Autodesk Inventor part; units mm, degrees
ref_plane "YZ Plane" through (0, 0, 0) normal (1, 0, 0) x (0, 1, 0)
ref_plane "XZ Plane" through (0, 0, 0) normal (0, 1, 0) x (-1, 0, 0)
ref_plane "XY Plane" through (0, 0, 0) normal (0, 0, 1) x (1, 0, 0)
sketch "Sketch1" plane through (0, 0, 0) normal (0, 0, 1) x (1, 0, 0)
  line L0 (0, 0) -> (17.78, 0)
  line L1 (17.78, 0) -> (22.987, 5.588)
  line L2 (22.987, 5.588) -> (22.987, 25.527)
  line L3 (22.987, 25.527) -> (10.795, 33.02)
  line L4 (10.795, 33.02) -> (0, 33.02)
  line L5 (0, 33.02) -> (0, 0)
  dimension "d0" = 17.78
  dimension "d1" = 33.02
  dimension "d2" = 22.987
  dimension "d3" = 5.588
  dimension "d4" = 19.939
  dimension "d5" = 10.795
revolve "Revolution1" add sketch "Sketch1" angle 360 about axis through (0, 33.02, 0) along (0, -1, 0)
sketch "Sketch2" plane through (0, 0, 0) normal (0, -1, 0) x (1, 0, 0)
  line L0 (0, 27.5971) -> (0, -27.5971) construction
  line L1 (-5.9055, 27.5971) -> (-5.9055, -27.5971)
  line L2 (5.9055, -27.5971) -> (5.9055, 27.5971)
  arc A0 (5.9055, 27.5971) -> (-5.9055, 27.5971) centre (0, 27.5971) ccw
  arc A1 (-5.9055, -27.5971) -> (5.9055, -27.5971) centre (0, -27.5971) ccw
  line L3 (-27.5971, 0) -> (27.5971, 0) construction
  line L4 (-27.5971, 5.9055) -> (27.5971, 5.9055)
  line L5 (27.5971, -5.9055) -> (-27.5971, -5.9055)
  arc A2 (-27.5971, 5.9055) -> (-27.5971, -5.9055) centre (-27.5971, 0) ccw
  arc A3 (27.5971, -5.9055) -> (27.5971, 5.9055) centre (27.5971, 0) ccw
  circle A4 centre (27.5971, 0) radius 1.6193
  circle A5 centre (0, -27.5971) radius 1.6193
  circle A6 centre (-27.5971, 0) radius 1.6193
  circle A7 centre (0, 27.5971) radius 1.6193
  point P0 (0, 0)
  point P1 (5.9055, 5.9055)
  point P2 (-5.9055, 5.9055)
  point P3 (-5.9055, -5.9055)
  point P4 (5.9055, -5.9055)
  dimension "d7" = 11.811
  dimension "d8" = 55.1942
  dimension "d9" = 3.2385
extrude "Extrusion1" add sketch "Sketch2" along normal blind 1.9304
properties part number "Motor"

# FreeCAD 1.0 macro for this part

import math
import FreeCAD as App
import Part
import Sketcher
from FreeCAD import Vector
Q = App.Units.Quantity

doc = App.newDocument("Part")
params = doc.addObject("Spreadsheet::Sheet", "Params")
for row, (alias, value) in enumerate([
    ("sketch1_width", "0.7 in"),
    ("sketch1_height", "1.3 in"),
    ("sketch1_width2", "0.425 in"),
    ("sketch1_height2", "0.785 in"),
    ("revolution_angle", "360 deg"),
    ("pad1_length", "0.076 in"),
], start=1):
    params.set(f"A{row}", alias)
    params.set(f"B{row}", "=" + value)
    params.setAlias(f"B{row}", alias)

body = doc.addObject("PartDesign::Body", "Body")

# Sketch on XY plane
sketch1 = body.newObject("Sketcher::SketchObject", "Sketch")
sketch1.AttachmentSupport = (doc.getObject("XY_Plane"), [""])
sketch1.MapMode = "FlatFace"
sketch1.addGeometry([
    Part.LineSegment(Vector(0, 33.02, 0), Vector(0, 0, 0)),  # 0
    Part.LineSegment(Vector(0, 0, 0), Vector(17.78, 0, 0)),  # 1
    Part.LineSegment(Vector(17.78, 0, 0), Vector(22.987, 5.588, 0)),  # 2
    Part.LineSegment(Vector(22.987, 5.588, 0), Vector(22.987, 25.527, 0)),  # 3
    Part.LineSegment(Vector(22.987, 25.527, 0), Vector(10.795, 33.02, 0)),  # 4
    Part.LineSegment(Vector(10.795, 33.02, 0), Vector(0, 33.02, 0)),  # 5
], False)
sketch1.addConstraint([
    Sketcher.Constraint("Coincident", 0, 2, 1, 1),
    Sketcher.Constraint("Coincident", 1, 2, 2, 1),
    Sketcher.Constraint("Coincident", 2, 2, 3, 1),
    Sketcher.Constraint("Coincident", 3, 2, 4, 1),
    Sketcher.Constraint("Coincident", 4, 2, 5, 1),
    Sketcher.Constraint("Coincident", 5, 2, 0, 1),
    Sketcher.Constraint("Vertical", 0),
    Sketcher.Constraint("Horizontal", 1),
    Sketcher.Constraint("Vertical", 3),
    Sketcher.Constraint("Horizontal", 5),
    Sketcher.Constraint("Coincident", 0, 2, -1, 1),
    Sketcher.Constraint("DistanceX", 1, 1, 1, 2, Q("0.7 in")),
    Sketcher.Constraint("DistanceY", 0, 2, 0, 1, Q("1.3 in")),
    Sketcher.Constraint("DistanceX", 5, 2, 5, 1, Q("0.425 in")),
    Sketcher.Constraint("DistanceY", 3, 1, 3, 2, Q("0.785 in")),
    Sketcher.Constraint("DistanceY", -1, 1, 2, 2, Q("0.22 in")),
    Sketcher.Constraint("DistanceX", -1, 1, 2, 2, Q("0.905 in")),
])
sketch1.setExpression("Constraints[11]", "Params.sketch1_width")
sketch1.setExpression("Constraints[12]", "Params.sketch1_height")
sketch1.setExpression("Constraints[13]", "Params.sketch1_width2")
sketch1.setExpression("Constraints[14]", "Params.sketch1_height2")
revolution = body.newObject("PartDesign::Revolution", "Revolution")
revolution.Profile = sketch1
revolution.ReferenceAxis = (sketch1, ["V_Axis"])
revolution.setExpression("Angle", "Params.revolution_angle")

# Sketch on XZ plane
sketch2 = body.newObject("Sketcher::SketchObject", "Sketch001")
sketch2.AttachmentSupport = (doc.getObject("XZ_Plane"), [""])
sketch2.MapMode = "FlatFace"
sketch2.addGeometry([
    Part.ArcOfCircle(Part.Circle(Vector(0, 27.5971, 0), Vector(0, 0, 1), 5.9055), math.radians(0), math.radians(180)),  # 0
    Part.LineSegment(Vector(-5.9055, 27.5971, 0), Vector(-5.9055, 5.9055, 0)),  # 1
    Part.LineSegment(Vector(-5.9055, 5.9055, 0), Vector(-27.5971, 5.9055, 0)),  # 2
    Part.ArcOfCircle(Part.Circle(Vector(-27.5971, 0, 0), Vector(0, 0, 1), 5.9055), math.radians(90), math.radians(270)),  # 3
    Part.LineSegment(Vector(-27.5971, -5.9055, 0), Vector(-5.9055, -5.9055, 0)),  # 4
    Part.LineSegment(Vector(-5.9055, -5.9055, 0), Vector(-5.9055, -27.5971, 0)),  # 5
    Part.ArcOfCircle(Part.Circle(Vector(0, -27.5971, 0), Vector(0, 0, 1), 5.9055), math.radians(180), math.radians(360)),  # 6
    Part.LineSegment(Vector(5.9055, -27.5971, 0), Vector(5.9055, -5.9055, 0)),  # 7
    Part.LineSegment(Vector(5.9055, -5.9055, 0), Vector(27.5971, -5.9055, 0)),  # 8
    Part.ArcOfCircle(Part.Circle(Vector(27.5971, 0, 0), Vector(0, 0, 1), 5.9055), math.radians(-90), math.radians(90)),  # 9
    Part.LineSegment(Vector(27.5971, 5.9055, 0), Vector(5.9055, 5.9055, 0)),  # 10
    Part.LineSegment(Vector(5.9055, 5.9055, 0), Vector(5.9055, 27.5971, 0)),  # 11
    Part.Circle(Vector(0, 27.5971, 0), Vector(0, 0, 1), 1.6193),  # 12
    Part.Circle(Vector(-27.5971, 0, 0), Vector(0, 0, 1), 1.6193),  # 13
    Part.Circle(Vector(27.5971, 0, 0), Vector(0, 0, 1), 1.6193),  # 14
    Part.Circle(Vector(0, -27.5971, 0), Vector(0, 0, 1), 1.6193),  # 15
], False)
sketch2.addConstraint([
    Sketcher.Constraint("Tangent", 0, 2, 1, 1),
    Sketcher.Constraint("Coincident", 1, 2, 2, 1),
    Sketcher.Constraint("Tangent", 2, 2, 3, 1),
    Sketcher.Constraint("Tangent", 3, 2, 4, 1),
    Sketcher.Constraint("Coincident", 4, 2, 5, 1),
    Sketcher.Constraint("Tangent", 5, 2, 6, 1),
    Sketcher.Constraint("Tangent", 6, 2, 7, 1),
    Sketcher.Constraint("Coincident", 7, 2, 8, 1),
    Sketcher.Constraint("Tangent", 8, 2, 9, 1),
    Sketcher.Constraint("Tangent", 9, 2, 10, 1),
    Sketcher.Constraint("Coincident", 10, 2, 11, 1),
    Sketcher.Constraint("Tangent", 11, 2, 0, 1),
    Sketcher.Constraint("Vertical", 1),
    Sketcher.Constraint("Horizontal", 2),
    Sketcher.Constraint("Horizontal", 4),
    Sketcher.Constraint("Vertical", 5),
    Sketcher.Constraint("Vertical", 7),
    Sketcher.Constraint("Horizontal", 8),
    Sketcher.Constraint("Horizontal", 10),
    Sketcher.Constraint("Vertical", 11),
    Sketcher.Constraint("Coincident", 12, 3, 0, 3),
    Sketcher.Constraint("Coincident", 13, 3, 3, 3),
    Sketcher.Constraint("Coincident", 14, 3, 9, 3),
    Sketcher.Constraint("Coincident", 15, 3, 6, 3),
    Sketcher.Constraint("Equal", 0, 3),
    Sketcher.Constraint("Equal", 3, 6),
    Sketcher.Constraint("Equal", 6, 9),
    Sketcher.Constraint("Equal", 12, 13),
    Sketcher.Constraint("Equal", 13, 14),
    Sketcher.Constraint("Equal", 14, 15),
    Sketcher.Constraint("Symmetric", 0, 3, 6, 3, -1, 1),
    Sketcher.Constraint("Symmetric", 3, 3, 9, 3, -1, 1),
    Sketcher.Constraint("Symmetric", 4, 2, 7, 2, -2),
    Sketcher.Constraint("Equal", 10, 1),
    Sketcher.Constraint("Diameter", 12, Q("0.1275 in")),
    Sketcher.Constraint("Radius", 0, Q("0.2325 in")),
    Sketcher.Constraint("DistanceY", 6, 3, 0, 3, Q("2.173 in")),
])
pad1 = body.newObject("PartDesign::Pad", "Pad")
pad1.Profile = sketch2
pad1.setExpression("Length", "Params.pad1_length")

doc.recompute()
